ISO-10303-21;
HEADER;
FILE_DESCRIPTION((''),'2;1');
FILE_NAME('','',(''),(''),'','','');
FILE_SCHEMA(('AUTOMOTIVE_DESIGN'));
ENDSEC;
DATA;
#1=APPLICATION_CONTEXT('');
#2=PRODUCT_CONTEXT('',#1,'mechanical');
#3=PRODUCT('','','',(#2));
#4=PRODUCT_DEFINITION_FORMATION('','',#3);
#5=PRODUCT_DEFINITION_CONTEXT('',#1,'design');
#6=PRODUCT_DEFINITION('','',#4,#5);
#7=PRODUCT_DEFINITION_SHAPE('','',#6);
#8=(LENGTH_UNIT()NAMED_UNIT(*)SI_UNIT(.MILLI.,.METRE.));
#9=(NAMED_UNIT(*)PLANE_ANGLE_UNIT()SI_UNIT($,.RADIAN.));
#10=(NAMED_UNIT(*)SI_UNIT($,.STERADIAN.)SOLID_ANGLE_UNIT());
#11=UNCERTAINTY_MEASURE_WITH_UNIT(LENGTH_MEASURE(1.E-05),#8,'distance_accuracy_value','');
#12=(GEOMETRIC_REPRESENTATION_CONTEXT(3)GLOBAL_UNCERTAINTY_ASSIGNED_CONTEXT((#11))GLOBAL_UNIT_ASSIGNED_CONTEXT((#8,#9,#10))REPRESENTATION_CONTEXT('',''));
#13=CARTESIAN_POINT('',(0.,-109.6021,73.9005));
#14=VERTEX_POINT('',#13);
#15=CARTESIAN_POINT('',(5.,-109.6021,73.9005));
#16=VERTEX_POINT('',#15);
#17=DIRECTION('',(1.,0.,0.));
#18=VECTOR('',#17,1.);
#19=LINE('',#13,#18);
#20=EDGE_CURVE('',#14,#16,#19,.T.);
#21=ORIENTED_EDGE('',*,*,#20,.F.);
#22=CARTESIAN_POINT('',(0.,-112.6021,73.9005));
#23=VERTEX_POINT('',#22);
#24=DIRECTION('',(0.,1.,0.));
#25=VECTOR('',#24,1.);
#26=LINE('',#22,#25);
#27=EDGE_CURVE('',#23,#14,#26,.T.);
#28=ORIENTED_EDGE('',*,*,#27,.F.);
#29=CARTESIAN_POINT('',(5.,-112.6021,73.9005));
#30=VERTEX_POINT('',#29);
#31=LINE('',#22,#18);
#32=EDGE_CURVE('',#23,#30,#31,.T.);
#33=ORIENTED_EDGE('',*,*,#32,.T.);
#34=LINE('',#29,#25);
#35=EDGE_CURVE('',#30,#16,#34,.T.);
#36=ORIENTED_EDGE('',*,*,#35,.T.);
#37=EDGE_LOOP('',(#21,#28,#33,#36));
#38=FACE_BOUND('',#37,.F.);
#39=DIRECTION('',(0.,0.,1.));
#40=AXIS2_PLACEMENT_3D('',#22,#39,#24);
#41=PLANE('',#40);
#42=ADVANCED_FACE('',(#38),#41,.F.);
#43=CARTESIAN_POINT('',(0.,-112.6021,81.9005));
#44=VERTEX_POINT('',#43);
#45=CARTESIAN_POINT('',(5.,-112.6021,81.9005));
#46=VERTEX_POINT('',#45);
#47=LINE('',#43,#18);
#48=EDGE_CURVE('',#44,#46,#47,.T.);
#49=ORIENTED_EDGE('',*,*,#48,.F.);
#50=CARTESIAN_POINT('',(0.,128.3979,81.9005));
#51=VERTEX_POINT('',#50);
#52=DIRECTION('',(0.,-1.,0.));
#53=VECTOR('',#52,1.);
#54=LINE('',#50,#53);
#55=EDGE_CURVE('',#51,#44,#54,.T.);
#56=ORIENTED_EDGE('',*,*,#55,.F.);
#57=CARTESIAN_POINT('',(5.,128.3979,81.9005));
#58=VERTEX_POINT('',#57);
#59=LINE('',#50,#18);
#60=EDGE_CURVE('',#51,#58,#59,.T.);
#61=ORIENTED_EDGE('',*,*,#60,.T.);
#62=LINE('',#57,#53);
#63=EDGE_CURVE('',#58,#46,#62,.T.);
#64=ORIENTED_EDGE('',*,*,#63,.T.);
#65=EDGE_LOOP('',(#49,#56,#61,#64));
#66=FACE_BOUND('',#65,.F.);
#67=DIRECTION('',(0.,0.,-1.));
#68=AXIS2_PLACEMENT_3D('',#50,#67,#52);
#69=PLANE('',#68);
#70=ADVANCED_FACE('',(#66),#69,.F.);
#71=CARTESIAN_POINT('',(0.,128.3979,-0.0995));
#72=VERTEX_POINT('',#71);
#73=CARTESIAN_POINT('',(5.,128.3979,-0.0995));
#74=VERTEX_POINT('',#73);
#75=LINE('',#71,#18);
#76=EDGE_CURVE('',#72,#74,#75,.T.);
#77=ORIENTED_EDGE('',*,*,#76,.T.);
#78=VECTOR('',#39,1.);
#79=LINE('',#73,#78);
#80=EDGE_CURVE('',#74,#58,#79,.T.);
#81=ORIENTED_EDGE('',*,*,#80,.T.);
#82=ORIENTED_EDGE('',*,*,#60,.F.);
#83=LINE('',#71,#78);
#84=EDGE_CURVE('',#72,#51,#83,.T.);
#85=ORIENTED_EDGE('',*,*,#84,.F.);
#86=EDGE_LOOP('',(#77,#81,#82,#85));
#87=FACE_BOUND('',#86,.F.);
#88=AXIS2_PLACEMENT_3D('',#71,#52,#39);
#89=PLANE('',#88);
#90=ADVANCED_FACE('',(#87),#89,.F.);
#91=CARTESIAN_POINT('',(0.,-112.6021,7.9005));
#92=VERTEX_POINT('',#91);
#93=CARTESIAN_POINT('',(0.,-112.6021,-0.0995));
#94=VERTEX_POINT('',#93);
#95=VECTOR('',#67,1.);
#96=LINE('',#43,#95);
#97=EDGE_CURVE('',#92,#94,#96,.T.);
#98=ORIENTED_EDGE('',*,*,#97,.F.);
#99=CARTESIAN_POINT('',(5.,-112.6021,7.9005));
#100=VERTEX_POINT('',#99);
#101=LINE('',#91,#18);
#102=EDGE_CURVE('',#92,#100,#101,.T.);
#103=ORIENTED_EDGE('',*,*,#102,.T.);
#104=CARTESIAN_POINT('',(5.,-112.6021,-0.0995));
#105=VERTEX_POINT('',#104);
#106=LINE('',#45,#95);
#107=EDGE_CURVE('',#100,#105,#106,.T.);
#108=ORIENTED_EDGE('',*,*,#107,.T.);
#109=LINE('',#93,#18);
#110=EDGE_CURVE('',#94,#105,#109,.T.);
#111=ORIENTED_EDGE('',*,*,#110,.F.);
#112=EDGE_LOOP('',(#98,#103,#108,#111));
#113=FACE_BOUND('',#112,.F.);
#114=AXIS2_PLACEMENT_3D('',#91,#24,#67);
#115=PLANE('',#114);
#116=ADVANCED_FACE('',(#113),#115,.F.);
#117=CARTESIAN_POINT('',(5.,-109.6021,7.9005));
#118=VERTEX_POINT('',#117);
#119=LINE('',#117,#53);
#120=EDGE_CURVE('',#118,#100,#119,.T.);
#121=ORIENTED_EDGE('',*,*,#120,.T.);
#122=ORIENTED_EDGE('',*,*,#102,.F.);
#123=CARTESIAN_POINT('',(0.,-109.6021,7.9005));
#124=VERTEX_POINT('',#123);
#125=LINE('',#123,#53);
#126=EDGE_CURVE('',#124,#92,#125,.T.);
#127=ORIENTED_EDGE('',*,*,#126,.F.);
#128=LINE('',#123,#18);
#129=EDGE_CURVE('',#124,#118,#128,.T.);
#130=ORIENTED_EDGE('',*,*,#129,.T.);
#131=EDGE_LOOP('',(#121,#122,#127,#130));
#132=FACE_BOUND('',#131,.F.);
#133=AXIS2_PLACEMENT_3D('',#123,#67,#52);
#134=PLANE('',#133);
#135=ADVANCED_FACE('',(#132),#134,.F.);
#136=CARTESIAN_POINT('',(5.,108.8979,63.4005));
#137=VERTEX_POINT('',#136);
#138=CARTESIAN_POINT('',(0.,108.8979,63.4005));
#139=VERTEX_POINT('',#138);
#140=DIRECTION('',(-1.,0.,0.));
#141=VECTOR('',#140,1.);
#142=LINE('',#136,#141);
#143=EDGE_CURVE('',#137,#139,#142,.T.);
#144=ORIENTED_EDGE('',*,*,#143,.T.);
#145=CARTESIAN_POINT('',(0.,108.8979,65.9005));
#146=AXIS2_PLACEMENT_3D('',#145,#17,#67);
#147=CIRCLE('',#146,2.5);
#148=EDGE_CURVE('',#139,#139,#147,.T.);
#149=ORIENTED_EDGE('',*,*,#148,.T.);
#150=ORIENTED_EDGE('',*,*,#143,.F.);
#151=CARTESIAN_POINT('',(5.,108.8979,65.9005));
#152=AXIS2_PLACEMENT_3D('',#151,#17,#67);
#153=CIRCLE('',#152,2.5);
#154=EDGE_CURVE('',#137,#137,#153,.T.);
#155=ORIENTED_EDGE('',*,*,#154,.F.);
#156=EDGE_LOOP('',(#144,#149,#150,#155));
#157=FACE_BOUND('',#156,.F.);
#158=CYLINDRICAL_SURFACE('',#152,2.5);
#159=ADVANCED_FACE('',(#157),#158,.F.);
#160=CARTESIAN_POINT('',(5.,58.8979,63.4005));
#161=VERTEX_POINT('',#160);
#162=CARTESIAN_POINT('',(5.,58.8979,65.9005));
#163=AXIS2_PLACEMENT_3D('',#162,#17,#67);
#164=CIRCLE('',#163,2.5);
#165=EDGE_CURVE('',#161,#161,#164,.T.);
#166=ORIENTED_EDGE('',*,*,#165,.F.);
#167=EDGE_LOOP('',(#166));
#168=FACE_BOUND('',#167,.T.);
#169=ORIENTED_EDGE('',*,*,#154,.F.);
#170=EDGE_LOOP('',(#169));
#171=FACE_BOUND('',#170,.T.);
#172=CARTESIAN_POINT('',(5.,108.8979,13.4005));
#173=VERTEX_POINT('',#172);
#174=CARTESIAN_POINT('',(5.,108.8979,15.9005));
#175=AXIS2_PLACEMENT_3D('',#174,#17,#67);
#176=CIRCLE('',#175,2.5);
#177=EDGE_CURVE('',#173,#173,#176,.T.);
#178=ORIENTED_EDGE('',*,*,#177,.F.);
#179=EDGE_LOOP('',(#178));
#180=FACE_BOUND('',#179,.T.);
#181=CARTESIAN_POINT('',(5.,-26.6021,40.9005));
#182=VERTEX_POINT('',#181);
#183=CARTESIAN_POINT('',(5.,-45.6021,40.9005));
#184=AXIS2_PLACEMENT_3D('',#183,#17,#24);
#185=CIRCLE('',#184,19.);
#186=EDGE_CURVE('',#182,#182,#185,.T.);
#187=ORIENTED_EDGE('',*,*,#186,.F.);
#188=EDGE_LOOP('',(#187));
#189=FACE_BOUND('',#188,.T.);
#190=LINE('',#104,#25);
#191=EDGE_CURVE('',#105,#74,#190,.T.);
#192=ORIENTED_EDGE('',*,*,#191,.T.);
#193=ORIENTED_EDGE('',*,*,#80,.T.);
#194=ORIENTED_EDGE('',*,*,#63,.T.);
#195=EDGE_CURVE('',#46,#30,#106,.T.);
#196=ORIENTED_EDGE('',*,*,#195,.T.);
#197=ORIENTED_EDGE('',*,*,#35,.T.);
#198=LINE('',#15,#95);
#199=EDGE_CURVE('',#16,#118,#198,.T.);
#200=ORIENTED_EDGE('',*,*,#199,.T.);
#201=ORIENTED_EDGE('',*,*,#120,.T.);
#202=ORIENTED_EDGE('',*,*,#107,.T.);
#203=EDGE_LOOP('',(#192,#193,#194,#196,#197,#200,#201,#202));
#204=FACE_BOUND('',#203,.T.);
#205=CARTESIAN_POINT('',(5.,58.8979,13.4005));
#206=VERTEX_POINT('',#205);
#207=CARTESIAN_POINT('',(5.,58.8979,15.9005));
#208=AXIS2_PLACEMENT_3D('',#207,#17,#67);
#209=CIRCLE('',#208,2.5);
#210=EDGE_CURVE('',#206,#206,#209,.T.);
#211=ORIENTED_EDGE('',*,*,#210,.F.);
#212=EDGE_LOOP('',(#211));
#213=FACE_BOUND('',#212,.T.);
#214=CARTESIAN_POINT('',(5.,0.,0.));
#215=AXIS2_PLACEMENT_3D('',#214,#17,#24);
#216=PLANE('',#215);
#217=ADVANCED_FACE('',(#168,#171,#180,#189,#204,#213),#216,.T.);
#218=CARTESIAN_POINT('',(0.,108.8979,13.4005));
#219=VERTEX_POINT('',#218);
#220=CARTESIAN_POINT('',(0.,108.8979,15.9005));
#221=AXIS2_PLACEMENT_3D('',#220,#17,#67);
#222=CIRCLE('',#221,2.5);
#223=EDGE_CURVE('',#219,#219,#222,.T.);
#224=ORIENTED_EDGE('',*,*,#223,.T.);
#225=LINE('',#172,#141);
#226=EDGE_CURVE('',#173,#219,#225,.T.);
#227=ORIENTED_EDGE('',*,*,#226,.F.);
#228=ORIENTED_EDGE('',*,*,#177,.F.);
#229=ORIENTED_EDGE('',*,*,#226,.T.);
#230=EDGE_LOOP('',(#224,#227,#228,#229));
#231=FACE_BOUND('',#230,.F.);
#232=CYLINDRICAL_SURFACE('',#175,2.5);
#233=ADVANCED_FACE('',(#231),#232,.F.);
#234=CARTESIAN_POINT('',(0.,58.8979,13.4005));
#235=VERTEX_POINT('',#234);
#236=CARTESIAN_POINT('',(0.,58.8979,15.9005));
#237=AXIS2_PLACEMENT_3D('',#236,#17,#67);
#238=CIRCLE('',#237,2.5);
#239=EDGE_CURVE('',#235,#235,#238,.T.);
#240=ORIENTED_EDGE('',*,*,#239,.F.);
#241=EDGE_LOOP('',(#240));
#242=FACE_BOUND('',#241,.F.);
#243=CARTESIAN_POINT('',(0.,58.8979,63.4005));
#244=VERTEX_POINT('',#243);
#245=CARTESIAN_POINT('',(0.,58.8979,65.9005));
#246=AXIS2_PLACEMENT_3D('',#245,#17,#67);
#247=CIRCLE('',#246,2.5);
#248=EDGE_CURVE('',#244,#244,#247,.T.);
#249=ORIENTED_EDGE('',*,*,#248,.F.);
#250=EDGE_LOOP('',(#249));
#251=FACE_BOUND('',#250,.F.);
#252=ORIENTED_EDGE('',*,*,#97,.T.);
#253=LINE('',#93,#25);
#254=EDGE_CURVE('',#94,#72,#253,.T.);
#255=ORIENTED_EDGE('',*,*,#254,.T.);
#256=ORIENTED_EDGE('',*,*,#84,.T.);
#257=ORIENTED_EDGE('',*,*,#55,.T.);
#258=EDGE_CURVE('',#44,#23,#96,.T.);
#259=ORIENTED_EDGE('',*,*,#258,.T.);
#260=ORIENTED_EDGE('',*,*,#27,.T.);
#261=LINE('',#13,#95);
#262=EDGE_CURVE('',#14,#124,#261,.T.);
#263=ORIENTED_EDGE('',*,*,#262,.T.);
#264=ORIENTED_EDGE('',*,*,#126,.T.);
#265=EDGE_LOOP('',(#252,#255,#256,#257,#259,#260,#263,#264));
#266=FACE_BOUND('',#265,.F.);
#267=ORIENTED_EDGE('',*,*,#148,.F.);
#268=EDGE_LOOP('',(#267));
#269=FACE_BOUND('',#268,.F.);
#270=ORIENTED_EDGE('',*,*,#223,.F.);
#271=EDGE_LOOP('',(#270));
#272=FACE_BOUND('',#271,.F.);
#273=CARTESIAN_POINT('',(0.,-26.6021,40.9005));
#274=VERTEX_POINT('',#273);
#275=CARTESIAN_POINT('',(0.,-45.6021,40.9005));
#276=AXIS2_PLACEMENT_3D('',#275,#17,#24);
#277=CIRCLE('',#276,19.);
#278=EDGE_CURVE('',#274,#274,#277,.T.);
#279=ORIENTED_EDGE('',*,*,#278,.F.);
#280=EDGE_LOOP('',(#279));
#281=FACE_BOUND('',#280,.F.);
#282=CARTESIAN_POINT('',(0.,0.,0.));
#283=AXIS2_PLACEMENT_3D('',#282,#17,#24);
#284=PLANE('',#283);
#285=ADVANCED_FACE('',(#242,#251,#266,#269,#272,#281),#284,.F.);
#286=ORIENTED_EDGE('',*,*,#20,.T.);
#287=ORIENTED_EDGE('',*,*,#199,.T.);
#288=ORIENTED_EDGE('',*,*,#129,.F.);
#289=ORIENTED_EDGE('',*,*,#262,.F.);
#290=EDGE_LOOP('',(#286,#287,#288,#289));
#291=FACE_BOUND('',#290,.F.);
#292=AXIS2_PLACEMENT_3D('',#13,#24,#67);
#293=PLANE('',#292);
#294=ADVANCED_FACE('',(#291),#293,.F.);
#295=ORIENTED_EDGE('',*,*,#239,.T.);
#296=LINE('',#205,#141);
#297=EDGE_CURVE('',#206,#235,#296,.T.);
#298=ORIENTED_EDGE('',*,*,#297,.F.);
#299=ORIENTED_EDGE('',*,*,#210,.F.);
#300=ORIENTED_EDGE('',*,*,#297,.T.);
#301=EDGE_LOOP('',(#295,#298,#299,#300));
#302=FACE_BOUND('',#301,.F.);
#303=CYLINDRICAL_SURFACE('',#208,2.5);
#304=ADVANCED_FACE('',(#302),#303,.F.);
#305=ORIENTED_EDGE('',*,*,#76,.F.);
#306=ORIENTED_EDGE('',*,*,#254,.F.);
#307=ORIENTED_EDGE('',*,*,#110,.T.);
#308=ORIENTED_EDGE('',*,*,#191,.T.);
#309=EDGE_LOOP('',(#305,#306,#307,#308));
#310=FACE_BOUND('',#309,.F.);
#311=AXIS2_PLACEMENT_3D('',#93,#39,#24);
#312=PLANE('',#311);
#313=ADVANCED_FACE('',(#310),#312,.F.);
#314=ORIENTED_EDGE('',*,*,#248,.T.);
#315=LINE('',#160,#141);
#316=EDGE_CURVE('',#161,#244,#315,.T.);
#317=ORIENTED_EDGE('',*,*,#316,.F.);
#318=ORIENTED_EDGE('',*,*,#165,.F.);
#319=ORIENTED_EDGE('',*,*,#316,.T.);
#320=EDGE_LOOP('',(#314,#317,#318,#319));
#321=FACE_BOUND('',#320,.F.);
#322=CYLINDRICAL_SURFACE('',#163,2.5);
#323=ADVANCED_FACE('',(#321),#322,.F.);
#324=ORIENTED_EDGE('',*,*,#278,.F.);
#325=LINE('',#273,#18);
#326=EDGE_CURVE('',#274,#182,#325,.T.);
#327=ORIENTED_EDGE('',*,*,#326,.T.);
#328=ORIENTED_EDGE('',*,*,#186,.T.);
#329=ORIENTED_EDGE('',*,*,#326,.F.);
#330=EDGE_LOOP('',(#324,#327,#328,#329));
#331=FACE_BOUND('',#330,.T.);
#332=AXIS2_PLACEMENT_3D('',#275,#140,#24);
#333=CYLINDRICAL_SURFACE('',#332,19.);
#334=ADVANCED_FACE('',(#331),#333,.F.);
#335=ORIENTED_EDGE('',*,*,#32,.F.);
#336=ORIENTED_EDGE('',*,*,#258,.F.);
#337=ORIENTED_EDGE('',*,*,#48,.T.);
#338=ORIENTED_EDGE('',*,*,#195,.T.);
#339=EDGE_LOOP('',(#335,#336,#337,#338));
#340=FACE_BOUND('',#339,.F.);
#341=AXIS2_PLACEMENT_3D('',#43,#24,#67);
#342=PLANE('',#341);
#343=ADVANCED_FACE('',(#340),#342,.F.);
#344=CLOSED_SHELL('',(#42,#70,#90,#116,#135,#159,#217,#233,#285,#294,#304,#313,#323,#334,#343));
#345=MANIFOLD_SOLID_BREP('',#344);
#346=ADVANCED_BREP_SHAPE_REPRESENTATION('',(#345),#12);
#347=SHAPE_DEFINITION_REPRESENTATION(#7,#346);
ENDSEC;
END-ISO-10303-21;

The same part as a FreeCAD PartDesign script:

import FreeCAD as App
import Part
import Sketcher
from FreeCAD import Vector
Q = App.Units.Quantity


def add_polygon(sketch, points):
    """Adds a closed chain of lines whose ends are joined by coincident constraints."""
    first, n = sketch.GeometryCount, len(points)
    for a, b in zip(points, points[1:] + points[:1]):
        sketch.addGeometry(Part.LineSegment(App.Vector(*a, 0), App.Vector(*b, 0)), False)
    for i in range(n):
        sketch.addConstraint(Sketcher.Constraint("Coincident", first + i, 2, first + (i + 1) % n, 1))

doc = App.newDocument("Part")
body = doc.addObject("PartDesign::Body", "Body")

sketch1 = body.newObject("Sketcher::SketchObject", "Sketch")
sketch1.AttachmentSupport = (doc.getObject("YZ_Plane"), [""])
sketch1.MapMode = "FlatFace"
add_polygon(sketch1, [(128.3979, -0.0995), (128.3979, 81.9005), (-112.6021, 81.9005), (-112.6021, 73.9005), (-109.6021, 73.9005), (-109.6021, 7.9005), (-112.6021, 7.9005), (-112.6021, -0.0995)])
sketch1.addGeometry(Part.Circle(Vector(-45.6021, 40.9005, 0), Vector(0, 0, 1), 19), False)
sketch1.addConstraint([
    Sketcher.Constraint("Vertical", 0),
    Sketcher.Constraint("Horizontal", 1),
    Sketcher.Constraint("Vertical", 2),
    Sketcher.Constraint("Horizontal", 3),
    Sketcher.Constraint("Vertical", 4),
    Sketcher.Constraint("Horizontal", 5),
    Sketcher.Constraint("Vertical", 6),
    Sketcher.Constraint("Horizontal", 7),
    Sketcher.Constraint("Vertical", 2, 2, 5, 2),
    Sketcher.Constraint("Equal", 2, 6),
    Sketcher.Constraint("Diameter", 8, Q("38 mm")),
    Sketcher.Constraint("DistanceX", 1, 2, 1, 1, Q("241 mm")),
    Sketcher.Constraint("DistanceX", 3, 1, 3, 2, Q("3 mm")),
    Sketcher.Constraint("DistanceY", 0, 1, 0, 2, Q("82 mm")),
    Sketcher.Constraint("DistanceY", 2, 2, 2, 1, Q("8 mm")),
    Sketcher.Constraint("DistanceX", 8, 3, 0, 2, Q("174 mm")),
    Sketcher.Constraint("DistanceY", 8, 3, 0, 2, Q("41 mm")),
    Sketcher.Constraint("DistanceX", 8, 3, -1, 1, Q("45.602 mm")),
    Sketcher.Constraint("DistanceY", -1, 1, 8, 3, Q("40.9005 mm")),
])
pad1 = body.newObject("PartDesign::Pad", "Pad")
pad1.Profile = sketch1
pad1.Length = 5

sketch2 = body.newObject("Sketcher::SketchObject", "Sketch001")
sketch2.AttachmentSupport = (doc.getObject("YZ_Plane"), [""])
sketch2.MapMode = "FlatFace"
sketch2.AttachmentOffset = App.Placement(Vector(0, 0, 5), App.Rotation())
sketch2.addGeometry([
    Part.Circle(Vector(108.8979, 65.9005, 0), Vector(0, 0, 1), 2.5),
    Part.Circle(Vector(108.8979, 15.9005, 0), Vector(0, 0, 1), 2.5),
    Part.Circle(Vector(58.8979, 65.9005, 0), Vector(0, 0, 1), 2.5),
    Part.Circle(Vector(58.8979, 15.9005, 0), Vector(0, 0, 1), 2.5),
], False)
sketch2.addConstraint([
    Sketcher.Constraint("Equal", 0, 1),
    Sketcher.Constraint("Equal", 1, 2),
    Sketcher.Constraint("Equal", 2, 3),
    Sketcher.Constraint("Horizontal", 0, 3, 2, 3),
    Sketcher.Constraint("Horizontal", 1, 3, 3, 3),
    Sketcher.Constraint("Vertical", 0, 3, 1, 3),
    Sketcher.Constraint("Vertical", 2, 3, 3, 3),
    Sketcher.Constraint("Diameter", 0, Q("5 mm")),
    Sketcher.Constraint("DistanceY", 1, 3, 0, 3, Q("50 mm")),
    Sketcher.Constraint("DistanceX", 2, 3, 0, 3, Q("50 mm")),
    Sketcher.Constraint("DistanceX", -1, 1, 0, 3, Q("108.898 mm")),
    Sketcher.Constraint("DistanceY", -1, 1, 0, 3, Q("65.9005 mm")),
])
pocket1 = body.newObject("PartDesign::Pocket", "Pocket")
pocket1.Profile = sketch2
pocket1.Length = 5

doc.recompute()
